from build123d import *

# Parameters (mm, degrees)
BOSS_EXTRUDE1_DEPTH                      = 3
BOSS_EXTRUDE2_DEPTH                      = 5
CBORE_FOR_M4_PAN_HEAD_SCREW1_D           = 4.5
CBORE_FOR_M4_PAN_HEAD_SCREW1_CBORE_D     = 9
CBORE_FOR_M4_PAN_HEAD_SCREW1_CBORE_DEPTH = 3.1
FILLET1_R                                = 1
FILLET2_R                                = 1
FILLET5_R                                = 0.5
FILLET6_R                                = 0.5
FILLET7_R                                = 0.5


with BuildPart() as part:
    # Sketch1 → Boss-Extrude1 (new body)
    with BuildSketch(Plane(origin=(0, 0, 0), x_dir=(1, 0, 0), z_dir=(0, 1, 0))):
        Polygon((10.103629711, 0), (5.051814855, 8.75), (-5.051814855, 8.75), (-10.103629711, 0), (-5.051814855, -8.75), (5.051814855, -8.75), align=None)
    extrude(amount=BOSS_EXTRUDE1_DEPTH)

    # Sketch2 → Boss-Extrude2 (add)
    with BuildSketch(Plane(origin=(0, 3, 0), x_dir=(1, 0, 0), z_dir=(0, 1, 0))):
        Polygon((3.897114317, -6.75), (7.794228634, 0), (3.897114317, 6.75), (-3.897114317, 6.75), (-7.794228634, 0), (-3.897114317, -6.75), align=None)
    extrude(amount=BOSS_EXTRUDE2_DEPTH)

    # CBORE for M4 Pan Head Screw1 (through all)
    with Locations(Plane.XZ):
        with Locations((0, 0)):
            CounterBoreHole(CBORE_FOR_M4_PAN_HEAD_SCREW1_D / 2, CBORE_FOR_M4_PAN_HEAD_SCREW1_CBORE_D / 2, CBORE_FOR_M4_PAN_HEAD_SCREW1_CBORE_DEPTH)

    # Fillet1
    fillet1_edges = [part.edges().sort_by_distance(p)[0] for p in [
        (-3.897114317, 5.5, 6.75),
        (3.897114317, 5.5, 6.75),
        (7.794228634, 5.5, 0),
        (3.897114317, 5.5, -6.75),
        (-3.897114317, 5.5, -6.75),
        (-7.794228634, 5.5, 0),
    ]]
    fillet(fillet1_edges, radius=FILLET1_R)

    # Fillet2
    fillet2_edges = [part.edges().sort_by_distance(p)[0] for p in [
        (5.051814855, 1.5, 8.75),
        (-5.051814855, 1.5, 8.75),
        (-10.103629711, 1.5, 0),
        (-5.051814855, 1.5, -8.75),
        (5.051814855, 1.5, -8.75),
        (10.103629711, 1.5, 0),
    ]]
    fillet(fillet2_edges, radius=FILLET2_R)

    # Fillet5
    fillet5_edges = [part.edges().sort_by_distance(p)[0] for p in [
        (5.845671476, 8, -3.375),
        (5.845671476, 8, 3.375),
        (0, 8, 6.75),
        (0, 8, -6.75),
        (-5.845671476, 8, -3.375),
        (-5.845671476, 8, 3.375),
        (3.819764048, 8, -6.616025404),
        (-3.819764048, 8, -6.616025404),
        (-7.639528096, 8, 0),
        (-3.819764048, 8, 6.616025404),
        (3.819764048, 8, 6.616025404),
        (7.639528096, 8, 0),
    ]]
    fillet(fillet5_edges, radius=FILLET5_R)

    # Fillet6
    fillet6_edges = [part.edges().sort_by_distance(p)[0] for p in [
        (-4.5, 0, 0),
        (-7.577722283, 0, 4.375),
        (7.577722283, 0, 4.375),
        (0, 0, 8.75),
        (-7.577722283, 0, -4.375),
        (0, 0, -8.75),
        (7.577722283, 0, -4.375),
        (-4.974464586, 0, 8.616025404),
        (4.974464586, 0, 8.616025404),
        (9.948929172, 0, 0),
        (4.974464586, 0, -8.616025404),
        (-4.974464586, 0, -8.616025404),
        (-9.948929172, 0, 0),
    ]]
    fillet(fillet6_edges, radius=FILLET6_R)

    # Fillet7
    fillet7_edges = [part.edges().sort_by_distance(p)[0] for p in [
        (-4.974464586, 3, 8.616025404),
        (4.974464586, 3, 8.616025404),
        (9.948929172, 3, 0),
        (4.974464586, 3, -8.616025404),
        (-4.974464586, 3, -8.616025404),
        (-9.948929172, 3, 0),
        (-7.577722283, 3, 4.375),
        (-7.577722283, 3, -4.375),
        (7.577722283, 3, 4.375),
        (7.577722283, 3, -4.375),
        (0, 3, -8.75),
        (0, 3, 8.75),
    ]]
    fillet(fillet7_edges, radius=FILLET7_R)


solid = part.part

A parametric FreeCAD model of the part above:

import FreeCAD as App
import Part
import Sketcher

V = App.Vector
Q = App.Units.Quantity


def edges_at(feature, points):
    """Names of the edges that pass closest to the given points."""
    edges = feature.Shape.Edges
    near = lambda p: min(range(len(edges)), key=lambda i: edges[i].distToShape(Part.Vertex(*p))[0])
    return sorted({f"Edge{near(p) + 1}" for p in points})

doc = App.newDocument("Part")
params = doc.addObject("Spreadsheet::Sheet", "Params")
for row, (alias, value) in enumerate([
    ("pad1_length", "3 mm"),
    ("pad2_length", "5 mm"),
    ("sketch3_diameter", "4.5 mm"),
    ("hole_diameter", "4.5 mm"),
    ("hole_cbore_diameter", "9 mm"),
    ("hole_cbore_depth", "3.1 mm"),
    ("fillet_radius", "1 mm"),
    ("fillet2_radius", "1 mm"),
    ("fillet3_radius", "0.5 mm"),
    ("fillet4_radius", "0.5 mm"),
    ("fillet5_radius", "0.5 mm"),
], start=1):
    params.set(f"A{row}", alias)
    params.set(f"B{row}", "=" + value)
    params.setAlias(f"B{row}", alias)

body = doc.addObject("PartDesign::Body", "Body")

# Sketch on XZ plane
sketch1 = body.newObject("Sketcher::SketchObject", "Sketch")
sketch1.AttachmentSupport = (doc.getObject("XZ_Plane"), [""])
sketch1.MapMode = "FlatFace"
sketch1.addGeometry([
    Part.LineSegment(V(10, 0, 0), V(5, -9, 0)),  # 0
    Part.LineSegment(V(5, -9, 0), V(-5, -9, 0)),  # 1
    Part.LineSegment(V(-5, -9, 0), V(-10, 0, 0)),  # 2
    Part.LineSegment(V(-10, 0, 0), V(-5, 9, 0)),  # 3
    Part.LineSegment(V(-5, 9, 0), V(5, 9, 0)),  # 4
    Part.LineSegment(V(5, 9, 0), V(10, 0, 0)),  # 5
], False)
sketch1.addConstraint([
    Sketcher.Constraint("Coincident", 0, 2, 1, 1),
    Sketcher.Constraint("Coincident", 1, 2, 2, 1),
    Sketcher.Constraint("Coincident", 2, 2, 3, 1),
    Sketcher.Constraint("Coincident", 3, 2, 4, 1),
    Sketcher.Constraint("Coincident", 4, 2, 5, 1),
    Sketcher.Constraint("Coincident", 5, 2, 0, 1),
    Sketcher.Constraint("Horizontal", 1),
    Sketcher.Constraint("Horizontal", 4),
    Sketcher.Constraint("Symmetric", 0, 2, 3, 2, -1, 1),
    Sketcher.Constraint("Symmetric", 2, 2, 5, 2, -1, 1),
    Sketcher.Constraint("PointOnObject", 2, 2, -1),
    Sketcher.Constraint("Parallel", 2, 5),
    Sketcher.Constraint("Vertical", 1, 2, 3, 2),
    Sketcher.Constraint("Angle", 0, Q("-120 deg")),
    Sketcher.Constraint("DistanceY", 1, 2, 3, 2, 17.5),
    Sketcher.Constraint("DistanceX", 1, 2, 1, 1, 10.10363),
])
pad1 = body.newObject("PartDesign::Pad", "Pad")
pad1.Profile = sketch1
pad1.setExpression("Length", "Params.pad1_length")
pad1.Reversed = True

# Sketch on XZ plane
sketch2 = body.newObject("Sketcher::SketchObject", "Sketch001")
sketch2.AttachmentSupport = (doc.getObject("XZ_Plane"), [""])
sketch2.MapMode = "FlatFace"
sketch2.AttachmentOffset = App.Placement(V(0, 0, -3), App.Rotation())
sketch2.addGeometry([
    Part.LineSegment(V(4, 7, 0), V(8, 0, 0)),  # 0
    Part.LineSegment(V(8, 0, 0), V(4, -7, 0)),  # 1
    Part.LineSegment(V(4, -7, 0), V(-4, -7, 0)),  # 2
    Part.LineSegment(V(-4, -7, 0), V(-8, 0, 0)),  # 3
    Part.LineSegment(V(-8, 0, 0), V(-4, 7, 0)),  # 4
    Part.LineSegment(V(-4, 7, 0), V(4, 7, 0)),  # 5
], False)
sketch2.addConstraint([
    Sketcher.Constraint("Coincident", 0, 2, 1, 1),
    Sketcher.Constraint("Coincident", 1, 2, 2, 1),
    Sketcher.Constraint("Coincident", 2, 2, 3, 1),
    Sketcher.Constraint("Coincident", 3, 2, 4, 1),
    Sketcher.Constraint("Coincident", 4, 2, 5, 1),
    Sketcher.Constraint("Coincident", 5, 2, 0, 1),
    Sketcher.Constraint("Horizontal", 2),
    Sketcher.Constraint("Horizontal", 5),
    Sketcher.Constraint("Symmetric", 0, 2, 3, 2, -1, 1),
    Sketcher.Constraint("Symmetric", 1, 2, 4, 2, -1, 1),
    Sketcher.Constraint("PointOnObject", 0, 2, -1),
    Sketcher.Constraint("Parallel", 0, 3),
    Sketcher.Constraint("Vertical", 2, 2, 4, 2),
    Sketcher.Constraint("Angle", 0, Q("-60 deg")),
    Sketcher.Constraint("DistanceY", 2, 2, 4, 2, 13.5),
    Sketcher.Constraint("DistanceX", 2, 2, 2, 1, 7.794229),
])
pad2 = body.newObject("PartDesign::Pad", "Pad001")
pad2.Profile = sketch2
pad2.setExpression("Length", "Params.pad2_length")
pad2.Reversed = True

# Sketch on XZ plane
sketch3 = body.newObject("Sketcher::SketchObject", "Sketch002")
sketch3.AttachmentSupport = (doc.getObject("XZ_Plane"), [""])
sketch3.MapMode = "FlatFace"
sketch3.addGeometry(Part.Circle(V(0, 0, 0), V(0, 0, 1), 2.2), False)
sketch3.addConstraint([
    Sketcher.Constraint("Coincident", 0, 3, -1, 1),
    Sketcher.Constraint("Diameter", 0, 4.5),
])
sketch3.setExpression("Constraints[1]", "Params.sketch3_diameter")
doc.recompute()
hole = body.newObject("PartDesign::Hole", "Hole")
hole.Profile = sketch3
hole.ThreadType = "None"
hole.setExpression("Diameter", "Params.hole_diameter")
hole.DepthType = "ThroughAll"
hole.HoleCutType = "Counterbore"
hole.setExpression("HoleCutDiameter", "Params.hole_cbore_diameter")
hole.setExpression("HoleCutDepth", "Params.hole_cbore_depth")
doc.recompute()

fillet = body.newObject("PartDesign::Fillet", "Fillet")
fillet.Base = (hole, edges_at(hole, [
    (-3.897, 5.5, 6.75),
    (3.897, 5.5, 6.75),
    (7.794, 5.5, 0),
    (3.897, 5.5, -6.75),
    (-3.897, 5.5, -6.75),
    (-7.794, 5.5, 0),
]))
fillet.setExpression("Radius", "Params.fillet_radius")
doc.recompute()

fillet2 = body.newObject("PartDesign::Fillet", "Fillet001")
fillet2.Base = (fillet, edges_at(fillet, [
    (5.052, 1.5, 8.75),
    (-5.052, 1.5, 8.75),
    (-10.104, 1.5, 0),
    (-5.052, 1.5, -8.75),
    (5.052, 1.5, -8.75),
    (10.104, 1.5, 0),
]))
fillet2.setExpression("Radius", "Params.fillet2_radius")
doc.recompute()

fillet3 = body.newObject("PartDesign::Fillet", "Fillet002")
fillet3.Base = (fillet2, edges_at(fillet2, [
    (5.846, 8, -3.375),
    (5.846, 8, 3.375),
    (0, 8, 6.75),
    (0, 8, -6.75),
    (-5.846, 8, -3.375),
    (-5.846, 8, 3.375),
    (3.82, 8, -6.616),
    (-3.82, 8, -6.616),
    (-7.64, 8, 0),
    (-3.82, 8, 6.616),
    (3.82, 8, 6.616),
    (7.64, 8, 0),
]))
fillet3.setExpression("Radius", "Params.fillet3_radius")
doc.recompute()

fillet4 = body.newObject("PartDesign::Fillet", "Fillet003")
fillet4.Base = (fillet3, edges_at(fillet3, [
    (-4.5, 0, 0),
    (-7.578, 0, 4.375),
    (7.578, 0, 4.375),
    (0, 0, 8.75),
    (-7.578, 0, -4.375),
    (0, 0, -8.75),
    (7.578, 0, -4.375),
    (-4.974, 0, 8.616),
    (4.974, 0, 8.616),
    (9.949, 0, 0),
    (4.974, 0, -8.616),
    (-4.974, 0, -8.616),
    (-9.949, 0, 0),
]))
fillet4.setExpression("Radius", "Params.fillet4_radius")
doc.recompute()

fillet5 = body.newObject("PartDesign::Fillet", "Fillet004")
fillet5.Base = (fillet4, edges_at(fillet4, [
    (-4.974, 3, 8.616),
    (4.974, 3, 8.616),
    (9.949, 3, 0),
    (4.974, 3, -8.616),
    (-4.974, 3, -8.616),
    (-9.949, 3, 0),
    (-7.578, 3, 4.375),
    (-7.578, 3, -4.375),
    (7.578, 3, 4.375),
    (7.578, 3, -4.375),
    (0, 3, -8.75),
    (0, 3, 8.75),
]))
fillet5.setExpression("Radius", "Params.fillet5_radius")

doc.recompute()
